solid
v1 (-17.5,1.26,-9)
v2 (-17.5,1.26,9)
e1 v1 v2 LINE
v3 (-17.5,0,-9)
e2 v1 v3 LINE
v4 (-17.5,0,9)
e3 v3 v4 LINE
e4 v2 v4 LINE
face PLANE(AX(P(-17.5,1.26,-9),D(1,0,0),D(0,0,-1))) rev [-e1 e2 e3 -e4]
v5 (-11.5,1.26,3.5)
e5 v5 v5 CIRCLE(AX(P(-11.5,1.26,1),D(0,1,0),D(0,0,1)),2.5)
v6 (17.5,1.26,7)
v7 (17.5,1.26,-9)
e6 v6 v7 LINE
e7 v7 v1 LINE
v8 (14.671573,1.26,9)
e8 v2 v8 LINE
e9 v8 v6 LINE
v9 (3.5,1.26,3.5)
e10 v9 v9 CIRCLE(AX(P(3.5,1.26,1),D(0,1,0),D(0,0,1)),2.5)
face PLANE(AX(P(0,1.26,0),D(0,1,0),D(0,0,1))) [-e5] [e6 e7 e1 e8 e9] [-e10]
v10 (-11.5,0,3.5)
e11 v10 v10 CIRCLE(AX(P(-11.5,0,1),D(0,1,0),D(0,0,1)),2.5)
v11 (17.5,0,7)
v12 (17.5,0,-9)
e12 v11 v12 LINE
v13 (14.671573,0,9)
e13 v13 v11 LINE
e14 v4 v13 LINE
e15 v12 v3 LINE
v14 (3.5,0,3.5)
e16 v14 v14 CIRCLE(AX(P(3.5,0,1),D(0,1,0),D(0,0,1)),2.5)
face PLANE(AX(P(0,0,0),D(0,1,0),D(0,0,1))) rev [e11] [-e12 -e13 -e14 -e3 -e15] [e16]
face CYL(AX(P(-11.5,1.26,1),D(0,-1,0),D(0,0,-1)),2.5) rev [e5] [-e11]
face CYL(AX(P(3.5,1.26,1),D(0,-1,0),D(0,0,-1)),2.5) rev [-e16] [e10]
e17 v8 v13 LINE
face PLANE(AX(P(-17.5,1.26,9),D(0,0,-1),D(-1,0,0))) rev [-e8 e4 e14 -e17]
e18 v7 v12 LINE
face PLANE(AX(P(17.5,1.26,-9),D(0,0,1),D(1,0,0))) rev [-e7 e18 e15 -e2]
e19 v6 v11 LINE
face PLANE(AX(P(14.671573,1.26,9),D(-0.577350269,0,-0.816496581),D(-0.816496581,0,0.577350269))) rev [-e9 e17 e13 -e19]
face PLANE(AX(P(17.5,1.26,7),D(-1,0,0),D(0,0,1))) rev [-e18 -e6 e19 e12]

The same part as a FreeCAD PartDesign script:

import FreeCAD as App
import Part
import Sketcher
from FreeCAD import Vector
Q = App.Units.Quantity

doc = App.newDocument("Part")
body = doc.addObject("PartDesign::Body", "Body")

# Sketch on XZ plane
sketch1 = body.newObject("Sketcher::SketchObject", "Sketch")
sketch1.AttachmentSupport = (doc.getObject("XZ_Plane"), [""])
sketch1.MapMode = "FlatFace"
sketch1.addGeometry([
    Part.LineSegment(Vector(-17.5, 9, 0), Vector(14.7, 9, 0)),  # 0
    Part.LineSegment(Vector(14.7, 9, 0), Vector(17.5, 7, 0)),  # 1
    Part.LineSegment(Vector(17.5, 7, 0), Vector(17.5, -9, 0)),  # 2
    Part.LineSegment(Vector(17.5, -9, 0), Vector(-17.5, -9, 0)),  # 3
    Part.LineSegment(Vector(-17.5, -9, 0), Vector(-17.5, 9, 0)),  # 4
    Part.Circle(Vector(-11.5, 1, 0), Vector(0, 0, 1), 2.5),  # 5
    Part.Circle(Vector(3.5, 1, 0), Vector(0, 0, 1), 2.5),  # 6
], False)
sketch1.addConstraint([
    Sketcher.Constraint("Coincident", 0, 2, 1, 1),
    Sketcher.Constraint("Coincident", 1, 2, 2, 1),
    Sketcher.Constraint("Coincident", 2, 2, 3, 1),
    Sketcher.Constraint("Coincident", 3, 2, 4, 1),
    Sketcher.Constraint("Coincident", 4, 2, 0, 1),
    Sketcher.Constraint("Horizontal", 0),
    Sketcher.Constraint("Vertical", 2),
    Sketcher.Constraint("Horizontal", 3),
    Sketcher.Constraint("Vertical", 4),
    Sketcher.Constraint("Equal", 5, 6),
    Sketcher.Constraint("Symmetric", 2, 2, 4, 2, -1, 1),
    Sketcher.Constraint("Horizontal", 5, 3, 6, 3),
    Sketcher.Constraint("Diameter", 5, Q("5 mm")),
    Sketcher.Constraint("DistanceX", 3, 2, 3, 1, Q("35 mm")),
    Sketcher.Constraint("DistanceY", 2, 2, 2, 1, Q("16 mm")),
    Sketcher.Constraint("DistanceY", 4, 1, 4, 2, Q("18 mm")),
    Sketcher.Constraint("DistanceY", -1, 1, 5, 3, Q("1 mm")),
    Sketcher.Constraint("DistanceX", 5, 3, 6, 3, Q("15 mm")),
    Sketcher.Constraint("DistanceX", 6, 3, 1, 2, Q("14 mm")),
    Sketcher.Constraint("Distance", 1, Q("3.464102 mm")),
])
pad1 = body.newObject("PartDesign::Pad", "Pad")
pad1.Profile = sketch1
pad1.Length = 1.26
pad1.Reversed = True

doc.recompute()
